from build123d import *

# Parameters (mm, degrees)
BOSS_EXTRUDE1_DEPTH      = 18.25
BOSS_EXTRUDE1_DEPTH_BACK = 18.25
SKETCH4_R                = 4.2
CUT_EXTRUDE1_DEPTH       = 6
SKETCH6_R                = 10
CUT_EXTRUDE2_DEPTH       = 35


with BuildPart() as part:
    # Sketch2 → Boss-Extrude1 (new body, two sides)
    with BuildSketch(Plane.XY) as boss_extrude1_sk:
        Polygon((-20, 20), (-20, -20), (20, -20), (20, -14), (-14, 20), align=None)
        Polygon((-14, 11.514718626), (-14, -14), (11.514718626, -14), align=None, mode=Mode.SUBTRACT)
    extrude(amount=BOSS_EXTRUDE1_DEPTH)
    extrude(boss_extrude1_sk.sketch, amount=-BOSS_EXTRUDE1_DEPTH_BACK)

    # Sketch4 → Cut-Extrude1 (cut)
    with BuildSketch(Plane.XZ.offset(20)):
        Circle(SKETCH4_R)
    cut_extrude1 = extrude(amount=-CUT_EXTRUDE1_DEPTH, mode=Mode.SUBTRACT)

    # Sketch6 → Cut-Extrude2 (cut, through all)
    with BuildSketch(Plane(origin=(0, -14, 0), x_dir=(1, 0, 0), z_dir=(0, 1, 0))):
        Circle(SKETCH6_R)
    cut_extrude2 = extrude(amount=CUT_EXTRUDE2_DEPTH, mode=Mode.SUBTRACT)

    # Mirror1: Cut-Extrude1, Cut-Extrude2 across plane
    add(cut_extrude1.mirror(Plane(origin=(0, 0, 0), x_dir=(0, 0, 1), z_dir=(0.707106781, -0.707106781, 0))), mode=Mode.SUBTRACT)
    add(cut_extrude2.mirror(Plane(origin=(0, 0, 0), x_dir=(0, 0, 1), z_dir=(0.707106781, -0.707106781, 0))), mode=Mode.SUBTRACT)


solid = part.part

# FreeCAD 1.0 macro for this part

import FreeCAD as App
import Part
import Sketcher

V = App.Vector
Q = App.Units.Quantity


def add_polygon(sketch, points):
    """Adds a closed chain of lines whose ends are joined by coincident constraints."""
    first, n = sketch.GeometryCount, len(points)
    for a, b in zip(points, points[1:] + points[:1]):
        sketch.addGeometry(Part.LineSegment(App.Vector(*a, 0), App.Vector(*b, 0)), False)
    for i in range(n):
        sketch.addConstraint(Sketcher.Constraint("Coincident", first + i, 2, first + (i + 1) % n, 1))

doc = App.newDocument("Part")
body = doc.addObject("PartDesign::Body", "Body")

sketch1 = body.newObject("Sketcher::SketchObject", "Sketch")
sketch1.AttachmentSupport = (doc.getObject("XY_Plane"), [""])
sketch1.MapMode = "FlatFace"
add_polygon(sketch1, [(-20, 20), (-20, -20), (20, -20), (20, -14), (-14, 20)])
add_polygon(sketch1, [(-14, -14), (-14, 12), (12, -14)])
sketch1.addConstraint(Sketcher.Constraint("Vertical", 0))
sketch1.addConstraint(Sketcher.Constraint("Horizontal", 1))
sketch1.addConstraint(Sketcher.Constraint("Vertical", 2))
sketch1.addConstraint(Sketcher.Constraint("Horizontal", 4))
sketch1.addConstraint(Sketcher.Constraint("Vertical", 5))
sketch1.addConstraint(Sketcher.Constraint("Horizontal", 7))
sketch1.addConstraint(Sketcher.Constraint("Symmetric", 1, 2, 4, 2, -1, 1))
sketch1.addConstraint(Sketcher.Constraint("Parallel", 3, 6))
sketch1.addConstraint(Sketcher.Constraint("Horizontal", 2, 2, 6, 2))
sketch1.addConstraint(Sketcher.Constraint("Vertical", 3, 2, 5, 2))
sketch1.addConstraint(Sketcher.Constraint("Equal", 1, 0))
sketch1.addConstraint(Sketcher.Constraint("Equal", 4, 2))
sketch1.addConstraint(Sketcher.Constraint("DistanceX", 1, 1, 1, 2, Q("40 mm")))
sketch1.addConstraint(Sketcher.Constraint("DistanceX", 4, 2, 4, 1, Q("6 mm")))
sketch1.addConstraint(Sketcher.Constraint("DistanceX", 7, 2, 7, 1, Q("25.514719 mm")))
pad1 = body.newObject("PartDesign::Pad", "Pad")
pad1.Profile = sketch1
pad1.Type = "TwoLengths"
pad1.Length = 18.25
pad1.Length2 = 18.25

sketch2 = body.newObject("Sketcher::SketchObject", "Sketch001")
sketch2.AttachmentSupport = (doc.getObject("XZ_Plane"), [""])
sketch2.MapMode = "FlatFace"
sketch2.AttachmentOffset = App.Placement(V(0, 0, 20), App.Rotation())
sketch2.addGeometry(Part.Circle(V(0, 0, 0), V(0, 0, 1), 4.2), False)
sketch2.addConstraint(Sketcher.Constraint("Coincident", 0, 3, -1, 1))
sketch2.addConstraint(Sketcher.Constraint("Diameter", 0, Q("8.4 mm")))
pocket1 = body.newObject("PartDesign::Pocket", "Pocket")
pocket1.Profile = sketch2
pocket1.Length = 6

sketch3 = body.newObject("Sketcher::SketchObject", "Sketch002")
sketch3.AttachmentSupport = (doc.getObject("XZ_Plane"), [""])
sketch3.MapMode = "FlatFace"
sketch3.AttachmentOffset = App.Placement(V(0, 0, 14), App.Rotation())
sketch3.addGeometry(Part.Circle(V(0, 0, 0), V(0, 0, 1), 10), False)
sketch3.addConstraint(Sketcher.Constraint("Coincident", 0, 3, -1, 1))
sketch3.addConstraint(Sketcher.Constraint("Diameter", 0, Q("20 mm")))
pocket2 = body.newObject("PartDesign::Pocket", "Pocket001")
pocket2.Profile = sketch3
pocket2.Type = "ThroughAll"
doc.recompute()

datumplane = body.newObject("PartDesign::Plane", "DatumPlane")
datumplane.Placement = App.Placement(V(0, 0, 0), App.Rotation(V(-0.707106781, -0.707106781, 0), V(0, 0, -1), V(0.707106781, -0.707106781, 0), "ZXY"))
mirrored = body.newObject("PartDesign::Mirrored", "Mirrored")
mirrored.Originals = [pocket1, pocket2]
mirrored.MirrorPlane = (datumplane, [""])
body.Tip = mirrored

doc.recompute()
